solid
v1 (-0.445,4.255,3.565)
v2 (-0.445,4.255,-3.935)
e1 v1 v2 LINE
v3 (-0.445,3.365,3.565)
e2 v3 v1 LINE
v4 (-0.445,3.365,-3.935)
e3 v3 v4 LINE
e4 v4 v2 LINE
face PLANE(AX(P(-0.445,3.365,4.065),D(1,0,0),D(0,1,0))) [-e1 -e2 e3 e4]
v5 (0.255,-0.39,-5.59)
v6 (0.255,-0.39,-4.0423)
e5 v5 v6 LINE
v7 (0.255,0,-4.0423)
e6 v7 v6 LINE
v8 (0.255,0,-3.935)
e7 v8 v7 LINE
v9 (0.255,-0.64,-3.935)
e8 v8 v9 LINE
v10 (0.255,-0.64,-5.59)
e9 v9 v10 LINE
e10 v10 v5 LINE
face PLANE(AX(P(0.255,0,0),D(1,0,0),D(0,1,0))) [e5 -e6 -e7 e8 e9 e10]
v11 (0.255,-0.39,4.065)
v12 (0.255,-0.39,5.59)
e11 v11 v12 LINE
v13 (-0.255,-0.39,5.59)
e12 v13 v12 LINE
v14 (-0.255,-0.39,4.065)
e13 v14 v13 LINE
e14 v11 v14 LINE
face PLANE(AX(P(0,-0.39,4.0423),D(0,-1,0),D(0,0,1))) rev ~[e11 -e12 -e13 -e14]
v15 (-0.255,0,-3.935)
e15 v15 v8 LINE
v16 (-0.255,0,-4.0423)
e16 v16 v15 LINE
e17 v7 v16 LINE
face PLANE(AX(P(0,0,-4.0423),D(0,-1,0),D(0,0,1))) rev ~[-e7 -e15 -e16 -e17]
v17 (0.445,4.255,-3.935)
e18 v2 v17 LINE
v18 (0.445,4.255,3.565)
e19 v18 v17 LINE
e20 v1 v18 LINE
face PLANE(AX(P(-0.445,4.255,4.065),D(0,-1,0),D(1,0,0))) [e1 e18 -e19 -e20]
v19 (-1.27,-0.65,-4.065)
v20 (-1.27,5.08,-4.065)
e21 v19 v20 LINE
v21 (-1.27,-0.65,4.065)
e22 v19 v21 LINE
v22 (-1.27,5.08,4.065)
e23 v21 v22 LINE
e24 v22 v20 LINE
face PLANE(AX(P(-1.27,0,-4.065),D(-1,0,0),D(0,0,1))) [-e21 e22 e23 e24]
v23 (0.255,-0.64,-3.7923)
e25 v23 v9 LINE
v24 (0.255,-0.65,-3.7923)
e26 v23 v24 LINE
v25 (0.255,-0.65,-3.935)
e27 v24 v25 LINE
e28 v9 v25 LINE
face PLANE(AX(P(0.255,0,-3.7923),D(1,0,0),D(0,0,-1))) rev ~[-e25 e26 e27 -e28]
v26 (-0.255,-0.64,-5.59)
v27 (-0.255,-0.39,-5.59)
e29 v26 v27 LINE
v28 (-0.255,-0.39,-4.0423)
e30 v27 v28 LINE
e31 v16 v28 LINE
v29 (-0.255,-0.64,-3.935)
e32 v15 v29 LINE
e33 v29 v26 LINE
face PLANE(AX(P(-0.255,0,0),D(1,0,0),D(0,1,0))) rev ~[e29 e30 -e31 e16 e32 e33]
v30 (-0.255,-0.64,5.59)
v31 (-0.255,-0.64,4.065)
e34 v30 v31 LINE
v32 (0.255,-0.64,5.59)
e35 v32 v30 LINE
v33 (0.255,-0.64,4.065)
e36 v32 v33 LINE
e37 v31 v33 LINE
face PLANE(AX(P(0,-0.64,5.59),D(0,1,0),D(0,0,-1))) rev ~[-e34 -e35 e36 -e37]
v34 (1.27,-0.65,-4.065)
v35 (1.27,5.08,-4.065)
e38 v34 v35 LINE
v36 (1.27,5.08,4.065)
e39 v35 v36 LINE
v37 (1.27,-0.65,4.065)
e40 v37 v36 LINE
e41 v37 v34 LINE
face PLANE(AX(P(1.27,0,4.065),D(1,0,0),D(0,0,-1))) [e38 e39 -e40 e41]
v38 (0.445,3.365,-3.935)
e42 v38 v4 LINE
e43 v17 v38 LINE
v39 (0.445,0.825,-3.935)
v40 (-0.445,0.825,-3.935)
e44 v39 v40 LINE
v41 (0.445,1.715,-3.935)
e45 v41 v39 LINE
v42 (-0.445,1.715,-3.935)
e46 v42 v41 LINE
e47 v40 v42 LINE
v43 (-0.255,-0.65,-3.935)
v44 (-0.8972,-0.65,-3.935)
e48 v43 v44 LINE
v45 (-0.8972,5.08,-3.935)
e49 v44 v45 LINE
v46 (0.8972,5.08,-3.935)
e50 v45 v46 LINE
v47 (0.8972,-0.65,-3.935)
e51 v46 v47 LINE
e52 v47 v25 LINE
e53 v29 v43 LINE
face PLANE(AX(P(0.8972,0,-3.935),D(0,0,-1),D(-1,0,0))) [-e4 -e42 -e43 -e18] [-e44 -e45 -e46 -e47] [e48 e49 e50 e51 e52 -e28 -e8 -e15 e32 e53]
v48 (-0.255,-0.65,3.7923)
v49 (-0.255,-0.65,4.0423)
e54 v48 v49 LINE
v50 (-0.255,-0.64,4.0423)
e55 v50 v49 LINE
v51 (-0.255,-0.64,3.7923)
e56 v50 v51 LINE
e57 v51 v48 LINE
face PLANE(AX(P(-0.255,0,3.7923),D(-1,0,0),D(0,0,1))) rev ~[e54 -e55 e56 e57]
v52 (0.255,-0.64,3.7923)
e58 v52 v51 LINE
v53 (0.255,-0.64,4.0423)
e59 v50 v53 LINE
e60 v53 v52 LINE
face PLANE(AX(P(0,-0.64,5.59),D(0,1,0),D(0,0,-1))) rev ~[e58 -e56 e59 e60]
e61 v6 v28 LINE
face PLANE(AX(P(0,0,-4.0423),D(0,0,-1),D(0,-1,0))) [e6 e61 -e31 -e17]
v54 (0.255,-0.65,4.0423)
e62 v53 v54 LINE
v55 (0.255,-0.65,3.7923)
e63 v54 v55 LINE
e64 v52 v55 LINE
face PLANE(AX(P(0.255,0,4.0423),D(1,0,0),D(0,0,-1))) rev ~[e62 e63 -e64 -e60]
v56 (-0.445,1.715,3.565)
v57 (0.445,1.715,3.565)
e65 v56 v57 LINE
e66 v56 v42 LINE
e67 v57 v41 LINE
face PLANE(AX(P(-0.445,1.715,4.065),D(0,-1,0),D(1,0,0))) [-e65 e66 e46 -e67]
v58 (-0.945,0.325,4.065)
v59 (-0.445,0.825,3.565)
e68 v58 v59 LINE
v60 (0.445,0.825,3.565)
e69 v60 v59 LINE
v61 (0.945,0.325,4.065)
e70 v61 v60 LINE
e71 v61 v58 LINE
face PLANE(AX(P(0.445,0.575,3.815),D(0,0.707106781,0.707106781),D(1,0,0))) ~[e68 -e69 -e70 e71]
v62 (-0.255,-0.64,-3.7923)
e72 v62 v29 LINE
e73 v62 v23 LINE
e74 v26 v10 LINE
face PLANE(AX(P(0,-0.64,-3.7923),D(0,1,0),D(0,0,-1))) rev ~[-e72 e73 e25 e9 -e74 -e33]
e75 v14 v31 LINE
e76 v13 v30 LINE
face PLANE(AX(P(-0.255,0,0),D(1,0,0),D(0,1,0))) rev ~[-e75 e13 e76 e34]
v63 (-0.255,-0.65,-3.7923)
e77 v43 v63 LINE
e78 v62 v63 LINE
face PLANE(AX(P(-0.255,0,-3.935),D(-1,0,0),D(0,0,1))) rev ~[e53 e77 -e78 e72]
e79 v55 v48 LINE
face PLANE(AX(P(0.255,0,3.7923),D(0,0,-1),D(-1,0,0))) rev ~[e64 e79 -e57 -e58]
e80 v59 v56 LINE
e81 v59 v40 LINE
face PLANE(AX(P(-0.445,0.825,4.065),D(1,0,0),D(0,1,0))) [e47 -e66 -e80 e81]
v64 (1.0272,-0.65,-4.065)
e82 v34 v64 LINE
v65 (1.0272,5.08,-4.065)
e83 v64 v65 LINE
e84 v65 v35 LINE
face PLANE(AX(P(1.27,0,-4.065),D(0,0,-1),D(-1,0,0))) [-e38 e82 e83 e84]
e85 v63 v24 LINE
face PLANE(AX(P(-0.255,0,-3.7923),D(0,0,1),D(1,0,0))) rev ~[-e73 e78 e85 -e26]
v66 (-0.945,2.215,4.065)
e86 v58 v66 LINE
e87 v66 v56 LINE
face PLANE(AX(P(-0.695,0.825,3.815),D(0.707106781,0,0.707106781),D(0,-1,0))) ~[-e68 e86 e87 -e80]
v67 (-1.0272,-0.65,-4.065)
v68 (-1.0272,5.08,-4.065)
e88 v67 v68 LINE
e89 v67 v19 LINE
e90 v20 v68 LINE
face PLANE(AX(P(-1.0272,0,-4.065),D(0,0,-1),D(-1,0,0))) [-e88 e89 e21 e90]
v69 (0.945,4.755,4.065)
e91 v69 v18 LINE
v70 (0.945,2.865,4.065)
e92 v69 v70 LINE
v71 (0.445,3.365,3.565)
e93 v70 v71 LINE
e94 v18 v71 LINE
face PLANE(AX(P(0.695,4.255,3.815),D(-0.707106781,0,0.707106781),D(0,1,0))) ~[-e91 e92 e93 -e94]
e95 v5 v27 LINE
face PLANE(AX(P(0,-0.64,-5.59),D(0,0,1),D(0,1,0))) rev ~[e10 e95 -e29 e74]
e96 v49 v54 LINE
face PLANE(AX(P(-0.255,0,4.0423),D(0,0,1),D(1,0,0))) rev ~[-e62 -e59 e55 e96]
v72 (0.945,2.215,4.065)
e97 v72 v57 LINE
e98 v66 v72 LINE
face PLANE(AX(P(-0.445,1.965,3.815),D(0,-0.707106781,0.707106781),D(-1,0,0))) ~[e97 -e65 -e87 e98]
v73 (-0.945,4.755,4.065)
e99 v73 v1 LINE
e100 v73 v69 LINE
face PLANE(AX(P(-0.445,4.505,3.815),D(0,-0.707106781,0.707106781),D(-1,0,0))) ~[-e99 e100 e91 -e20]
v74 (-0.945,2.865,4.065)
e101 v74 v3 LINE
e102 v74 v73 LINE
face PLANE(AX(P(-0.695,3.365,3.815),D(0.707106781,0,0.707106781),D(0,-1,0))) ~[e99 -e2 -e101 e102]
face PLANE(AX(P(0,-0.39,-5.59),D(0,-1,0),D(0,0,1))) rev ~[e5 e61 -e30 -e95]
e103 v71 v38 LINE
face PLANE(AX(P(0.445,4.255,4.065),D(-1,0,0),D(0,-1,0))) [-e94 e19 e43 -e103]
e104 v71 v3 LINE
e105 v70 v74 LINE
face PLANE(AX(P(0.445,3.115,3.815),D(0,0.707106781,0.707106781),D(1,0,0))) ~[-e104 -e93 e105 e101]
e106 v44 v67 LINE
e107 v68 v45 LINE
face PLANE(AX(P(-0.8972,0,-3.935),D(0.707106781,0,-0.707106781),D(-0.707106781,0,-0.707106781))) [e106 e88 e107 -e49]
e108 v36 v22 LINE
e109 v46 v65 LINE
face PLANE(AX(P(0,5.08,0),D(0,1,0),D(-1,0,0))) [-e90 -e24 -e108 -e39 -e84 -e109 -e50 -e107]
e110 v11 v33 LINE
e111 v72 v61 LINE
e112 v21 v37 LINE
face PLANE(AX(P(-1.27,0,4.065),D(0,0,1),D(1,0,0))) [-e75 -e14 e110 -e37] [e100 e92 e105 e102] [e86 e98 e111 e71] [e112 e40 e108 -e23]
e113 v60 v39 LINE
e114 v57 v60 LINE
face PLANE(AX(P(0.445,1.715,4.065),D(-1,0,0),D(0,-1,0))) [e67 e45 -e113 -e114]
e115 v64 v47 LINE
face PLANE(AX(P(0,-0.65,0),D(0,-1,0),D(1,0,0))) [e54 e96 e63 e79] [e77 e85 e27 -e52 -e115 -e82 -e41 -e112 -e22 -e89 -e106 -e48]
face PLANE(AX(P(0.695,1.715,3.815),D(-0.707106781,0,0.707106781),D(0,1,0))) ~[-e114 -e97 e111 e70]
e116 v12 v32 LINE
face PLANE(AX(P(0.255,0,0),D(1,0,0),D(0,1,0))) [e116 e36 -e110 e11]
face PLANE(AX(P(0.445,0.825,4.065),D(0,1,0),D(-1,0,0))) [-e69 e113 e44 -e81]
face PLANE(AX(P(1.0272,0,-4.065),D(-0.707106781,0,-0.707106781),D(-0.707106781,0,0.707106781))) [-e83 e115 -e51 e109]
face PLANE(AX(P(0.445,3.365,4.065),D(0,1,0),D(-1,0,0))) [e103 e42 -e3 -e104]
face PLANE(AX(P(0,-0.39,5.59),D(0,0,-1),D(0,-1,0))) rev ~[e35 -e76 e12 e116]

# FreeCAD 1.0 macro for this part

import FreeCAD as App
import Part
import Sketcher
from FreeCAD import Vector
Q = App.Units.Quantity


def edges_at(feature, points):
    """Names of the edges that pass closest to the given points."""
    edges = feature.Shape.Edges
    near = lambda p: min(range(len(edges)), key=lambda i: edges[i].distToShape(Part.Vertex(*p))[0])
    return sorted({f"Edge{near(p) + 1}" for p in points})

doc = App.newDocument("Part")
params = doc.addObject("Spreadsheet::Sheet", "Params")
for row, (alias, value) in enumerate([
    ("sketch1_width", "2.54 mm"),
    ("sketch1_height", "8.13 mm"),
    ("pad1_length", "5.08 mm"),
    ("sketch2_width", "0.89 mm"),
    ("pocket1_length", "8 mm"),
    ("sketch3_width", "0.25 mm"),
    ("sketch3_width2", "0.39 mm"),
    ("pad2_length", "0.51 mm"),
    ("chamfer_size", "0.5 mm"),
    ("sketch4_width", "0.51 mm"),
    ("sketch4_width2", "2.54 mm"),
    ("sketch4_height", "8.13 mm"),
    ("sketch4_height2", "0.25 mm"),
    ("pad3_length", "0.65 mm"),
], start=1):
    params.set(f"A{row}", alias)
    params.set(f"B{row}", "=" + value)
    params.setAlias(f"B{row}", alias)

body = doc.addObject("PartDesign::Body", "Body")

# Sketch on XZ plane
sketch1 = doc.addObject("Sketcher::SketchObject", "Sketch")
body.addObject(sketch1)
sketch1.AttachmentSupport = (doc.XZ_Plane, [""])
sketch1.MapMode = "FlatFace"
sketch1.addGeometry(Part.LineSegment(Vector(1.27, 4.07, 0), Vector(1.27, -4.07, 0)), False)
sketch1.addGeometry(Part.LineSegment(Vector(1.27, -4.07, 0), Vector(1.03, -4.07, 0)), False)
sketch1.addGeometry(Part.LineSegment(Vector(1.03, -4.07, 0), Vector(0.9, -3.94, 0)), False)
sketch1.addGeometry(Part.LineSegment(Vector(0.9, -3.94, 0), Vector(-0.9, -3.94, 0)), False)
sketch1.addGeometry(Part.LineSegment(Vector(-0.9, -3.94, 0), Vector(-1.03, -4.07, 0)), False)
sketch1.addGeometry(Part.LineSegment(Vector(-1.03, -4.07, 0), Vector(-1.27, -4.07, 0)), False)
sketch1.addGeometry(Part.LineSegment(Vector(-1.27, -4.07, 0), Vector(-1.27, 4.07, 0)), False)
sketch1.addGeometry(Part.LineSegment(Vector(-1.27, 4.07, 0), Vector(1.27, 4.07, 0)), False)
sketch1.addConstraint(Sketcher.Constraint("Coincident", 0, 2, 1, 1))
sketch1.addConstraint(Sketcher.Constraint("Coincident", 1, 2, 2, 1))
sketch1.addConstraint(Sketcher.Constraint("Coincident", 2, 2, 3, 1))
sketch1.addConstraint(Sketcher.Constraint("Coincident", 3, 2, 4, 1))
sketch1.addConstraint(Sketcher.Constraint("Coincident", 4, 2, 5, 1))
sketch1.addConstraint(Sketcher.Constraint("Coincident", 5, 2, 6, 1))
sketch1.addConstraint(Sketcher.Constraint("Coincident", 6, 2, 7, 1))
sketch1.addConstraint(Sketcher.Constraint("Coincident", 7, 2, 0, 1))
sketch1.addConstraint(Sketcher.Constraint("Vertical", 0))
sketch1.addConstraint(Sketcher.Constraint("Horizontal", 1))
sketch1.addConstraint(Sketcher.Constraint("Horizontal", 3))
sketch1.addConstraint(Sketcher.Constraint("Horizontal", 5))
sketch1.addConstraint(Sketcher.Constraint("Vertical", 6))
sketch1.addConstraint(Sketcher.Constraint("Horizontal", 7))
sketch1.addConstraint(Sketcher.Constraint("Symmetric", 0, 2, 6, 2, -1, 1))
sketch1.addConstraint(Sketcher.Constraint("Symmetric", 1, 2, 4, 2, -2))
sketch1.addConstraint(Sketcher.Constraint("Perpendicular", 2, 4))
sketch1.addConstraint(Sketcher.Constraint("Equal", 2, 4))
sketch1.addConstraint(Sketcher.Constraint("DistanceX", 7, 1, 7, 2, Q("2.54 mm")))
sketch1.addConstraint(Sketcher.Constraint("DistanceY", 0, 2, 0, 1, Q("8.13 mm")))
sketch1.addConstraint(Sketcher.Constraint("DistanceX", 2, 2, 1, 2, Q("0.13 mm")))
sketch1.addConstraint(Sketcher.Constraint("DistanceX", 1, 2, 1, 1, Q("0.2428 mm")))
sketch1.setExpression("Constraints[18]", "Params.sketch1_width")
sketch1.setExpression("Constraints[19]", "Params.sketch1_height")
pad1 = doc.addObject("PartDesign::Pad", "Pad")
body.addObject(pad1)
pad1.Profile = sketch1
pad1.setExpression("Length", "Params.pad1_length")
pad1.Reversed = True

# Sketch on XY plane
sketch2 = doc.addObject("Sketcher::SketchObject", "Sketch001")
body.addObject(sketch2)
sketch2.AttachmentSupport = (doc.XY_Plane, [""])
sketch2.MapMode = "FlatFace"
sketch2.AttachmentOffset = App.Placement(Vector(0, 0, 4.065), App.Rotation())
sketch2.addGeometry(Part.LineSegment(Vector(0.4, 4.3, 0), Vector(-0.4, 4.3, 0)), False)
sketch2.addGeometry(Part.LineSegment(Vector(-0.4, 4.3, 0), Vector(-0.4, 3.4, 0)), False)
sketch2.addGeometry(Part.LineSegment(Vector(-0.4, 3.4, 0), Vector(0.4, 3.4, 0)), False)
sketch2.addGeometry(Part.LineSegment(Vector(0.4, 3.4, 0), Vector(0.4, 4.3, 0)), False)
sketch2.addGeometry(Part.LineSegment(Vector(0.4, 1.7, 0), Vector(-0.4, 1.7, 0)), False)
sketch2.addGeometry(Part.LineSegment(Vector(-0.4, 1.7, 0), Vector(-0.4, 0.8, 0)), False)
sketch2.addGeometry(Part.LineSegment(Vector(-0.4, 0.8, 0), Vector(0.4, 0.8, 0)), False)
sketch2.addGeometry(Part.LineSegment(Vector(0.4, 0.8, 0), Vector(0.4, 1.7, 0)), False)
sketch2.addConstraint(Sketcher.Constraint("Coincident", 0, 2, 1, 1))
sketch2.addConstraint(Sketcher.Constraint("Coincident", 1, 2, 2, 1))
sketch2.addConstraint(Sketcher.Constraint("Coincident", 2, 2, 3, 1))
sketch2.addConstraint(Sketcher.Constraint("Coincident", 3, 2, 0, 1))
sketch2.addConstraint(Sketcher.Constraint("Coincident", 4, 2, 5, 1))
sketch2.addConstraint(Sketcher.Constraint("Coincident", 5, 2, 6, 1))
sketch2.addConstraint(Sketcher.Constraint("Coincident", 6, 2, 7, 1))
sketch2.addConstraint(Sketcher.Constraint("Coincident", 7, 2, 4, 1))
sketch2.addConstraint(Sketcher.Constraint("Horizontal", 0))
sketch2.addConstraint(Sketcher.Constraint("Vertical", 1))
sketch2.addConstraint(Sketcher.Constraint("Horizontal", 2))
sketch2.addConstraint(Sketcher.Constraint("Vertical", 3))
sketch2.addConstraint(Sketcher.Constraint("Horizontal", 4))
sketch2.addConstraint(Sketcher.Constraint("Vertical", 5))
sketch2.addConstraint(Sketcher.Constraint("Horizontal", 6))
sketch2.addConstraint(Sketcher.Constraint("Vertical", 7))
sketch2.addConstraint(Sketcher.Constraint("Vertical", 1, 2, 4, 2))
sketch2.addConstraint(Sketcher.Constraint("Vertical", 3, 2, 6, 2))
sketch2.addConstraint(Sketcher.Constraint("Equal", 6, 1))
sketch2.addConstraint(Sketcher.Constraint("Equal", 3, 5))
sketch2.addConstraint(Sketcher.Constraint("DistanceX", 0, 2, 0, 1, Q("0.89 mm")))
sketch2.addConstraint(Sketcher.Constraint("DistanceY", 4, 2, 0, 2, Q("2.54 mm")))
sketch2.addConstraint(Sketcher.Constraint("DistanceX", 0, 2, -1, 1, Q("0.445 mm")))
sketch2.addConstraint(Sketcher.Constraint("DistanceY", -1, 1, 0, 2, Q("4.255 mm")))
sketch2.setExpression("Constraints[20]", "Params.sketch2_width")
pocket1 = doc.addObject("PartDesign::Pocket", "Pocket")
body.addObject(pocket1)
pocket1.Profile = sketch2
pocket1.setExpression("Length", "Params.pocket1_length")

# Sketch on YZ plane
sketch3 = doc.addObject("Sketcher::SketchObject", "Sketch002")
body.addObject(sketch3)
sketch3.AttachmentSupport = (doc.YZ_Plane, [""])
sketch3.MapMode = "FlatFace"
sketch3.addGeometry(Part.LineSegment(Vector(0, 3.79, 0), Vector(0, 4.04, 0)), False)
sketch3.addGeometry(Part.LineSegment(Vector(0, 4.04, 0), Vector(-0.39, 4.04, 0)), False)
sketch3.addGeometry(Part.LineSegment(Vector(-0.39, 4.04, 0), Vector(-0.39, 5.59, 0)), False)
sketch3.addGeometry(Part.LineSegment(Vector(-0.39, 5.59, 0), Vector(-0.64, 5.59, 0)), False)
sketch3.addGeometry(Part.LineSegment(Vector(-0.64, 5.59, 0), Vector(-0.64, 3.79, 0)), False)
sketch3.addGeometry(Part.LineSegment(Vector(-0.64, 3.79, 0), Vector(0, 3.79, 0)), False)
sketch3.addGeometry(Part.LineSegment(Vector(0, -4.04, 0), Vector(0, -3.79, 0)), False)
sketch3.addGeometry(Part.LineSegment(Vector(0, -3.79, 0), Vector(-0.64, -3.79, 0)), False)
sketch3.addGeometry(Part.LineSegment(Vector(-0.64, -3.79, 0), Vector(-0.64, -5.59, 0)), False)
sketch3.addGeometry(Part.LineSegment(Vector(-0.64, -5.59, 0), Vector(-0.39, -5.59, 0)), False)
sketch3.addGeometry(Part.LineSegment(Vector(-0.39, -5.59, 0), Vector(-0.39, -4.04, 0)), False)
sketch3.addGeometry(Part.LineSegment(Vector(-0.39, -4.04, 0), Vector(0, -4.04, 0)), False)
sketch3.addConstraint(Sketcher.Constraint("Coincident", 0, 2, 1, 1))
sketch3.addConstraint(Sketcher.Constraint("Coincident", 1, 2, 2, 1))
sketch3.addConstraint(Sketcher.Constraint("Coincident", 2, 2, 3, 1))
sketch3.addConstraint(Sketcher.Constraint("Coincident", 3, 2, 4, 1))
sketch3.addConstraint(Sketcher.Constraint("Coincident", 4, 2, 5, 1))
sketch3.addConstraint(Sketcher.Constraint("Coincident", 5, 2, 0, 1))
sketch3.addConstraint(Sketcher.Constraint("Coincident", 6, 2, 7, 1))
sketch3.addConstraint(Sketcher.Constraint("Coincident", 7, 2, 8, 1))
sketch3.addConstraint(Sketcher.Constraint("Coincident", 8, 2, 9, 1))
sketch3.addConstraint(Sketcher.Constraint("Coincident", 9, 2, 10, 1))
sketch3.addConstraint(Sketcher.Constraint("Coincident", 10, 2, 11, 1))
sketch3.addConstraint(Sketcher.Constraint("Coincident", 11, 2, 6, 1))
sketch3.addConstraint(Sketcher.Constraint("Vertical", 0))
sketch3.addConstraint(Sketcher.Constraint("Horizontal", 1))
sketch3.addConstraint(Sketcher.Constraint("Vertical", 2))
sketch3.addConstraint(Sketcher.Constraint("Horizontal", 3))
sketch3.addConstraint(Sketcher.Constraint("Vertical", 4))
sketch3.addConstraint(Sketcher.Constraint("Horizontal", 5))
sketch3.addConstraint(Sketcher.Constraint("Vertical", 6))
sketch3.addConstraint(Sketcher.Constraint("Horizontal", 7))
sketch3.addConstraint(Sketcher.Constraint("Vertical", 8))
sketch3.addConstraint(Sketcher.Constraint("Horizontal", 9))
sketch3.addConstraint(Sketcher.Constraint("Vertical", 10))
sketch3.addConstraint(Sketcher.Constraint("Horizontal", 11))
sketch3.addConstraint(Sketcher.Constraint("Symmetric", 5, 2, 6, 2, -1, 1))
sketch3.addConstraint(Sketcher.Constraint("Symmetric", 3, 2, 8, 2, -1))
sketch3.addConstraint(Sketcher.Constraint("Symmetric", 1, 2, 10, 2, -1))
sketch3.addConstraint(Sketcher.Constraint("PointOnObject", 0, 2, -2))
sketch3.addConstraint(Sketcher.Constraint("Equal", 9, 0))
sketch3.addConstraint(Sketcher.Constraint("DistanceX", 3, 2, 3, 1, Q("0.25 mm")))
sketch3.addConstraint(Sketcher.Constraint("DistanceX", 1, 2, 1, 1, Q("0.39 mm")))
sketch3.addConstraint(Sketcher.Constraint("DistanceY", -1, 1, 2, 2, Q("5.59 mm")))
sketch3.addConstraint(Sketcher.Constraint("DistanceY", 2, 1, 2, 2, Q("1.5477 mm")))
sketch3.setExpression("Constraints[29]", "Params.sketch3_width")
sketch3.setExpression("Constraints[30]", "Params.sketch3_width2")
pad2 = doc.addObject("PartDesign::Pad", "Pad001")
body.addObject(pad2)
pad2.Profile = sketch3
pad2.setExpression("Length", "Params.pad2_length")
pad2.Midplane = True
doc.recompute()

chamfer = doc.addObject("PartDesign::Chamfer", "Chamfer")
body.addObject(chamfer)
chamfer.Base = (pad2, edges_at(pad2, [
    (0.445, 3.81, 4.065),
    (0, 3.365, 4.065),
    (-0.445, 3.81, 4.065),
    (0, 4.255, 4.065),
    (0, 1.715, 4.065),
    (0.445, 1.27, 4.065),
    (0, 0.825, 4.065),
    (-0.445, 1.27, 4.065),
]))
chamfer.setExpression("Size", "Params.chamfer_size")

# Sketch on XZ plane
sketch4 = doc.addObject("Sketcher::SketchObject", "Sketch003")
body.addObject(sketch4)
sketch4.AttachmentSupport = (doc.XZ_Plane, [""])
sketch4.MapMode = "FlatFace"
sketch4.addGeometry(Part.LineSegment(Vector(-0.26, -3.79, 0), Vector(0.26, -3.79, 0)), False)
sketch4.addGeometry(Part.LineSegment(Vector(0.26, -3.79, 0), Vector(0.26, -3.94, 0)), False)
sketch4.addGeometry(Part.LineSegment(Vector(0.26, -3.94, 0), Vector(0.9, -3.94, 0)), False)
sketch4.addGeometry(Part.LineSegment(Vector(0.9, -3.94, 0), Vector(1.03, -4.07, 0)), False)
sketch4.addGeometry(Part.LineSegment(Vector(1.03, -4.07, 0), Vector(1.27, -4.07, 0)), False)
sketch4.addGeometry(Part.LineSegment(Vector(1.27, -4.07, 0), Vector(1.27, 4.07, 0)), False)
sketch4.addGeometry(Part.LineSegment(Vector(1.27, 4.07, 0), Vector(-1.27, 4.07, 0)), False)
sketch4.addGeometry(Part.LineSegment(Vector(-1.27, 4.07, 0), Vector(-1.27, -4.07, 0)), False)
sketch4.addGeometry(Part.LineSegment(Vector(-1.27, -4.07, 0), Vector(-1.03, -4.07, 0)), False)
sketch4.addGeometry(Part.LineSegment(Vector(-1.03, -4.07, 0), Vector(-0.9, -3.94, 0)), False)
sketch4.addGeometry(Part.LineSegment(Vector(-0.9, -3.94, 0), Vector(-0.26, -3.94, 0)), False)
sketch4.addGeometry(Part.LineSegment(Vector(-0.26, -3.94, 0), Vector(-0.26, -3.79, 0)), False)
sketch4.addGeometry(Part.LineSegment(Vector(0.26, 3.79, 0), Vector(-0.26, 3.79, 0)), False)
sketch4.addGeometry(Part.LineSegment(Vector(-0.26, 3.79, 0), Vector(-0.26, 4.04, 0)), False)
sketch4.addGeometry(Part.LineSegment(Vector(-0.26, 4.04, 0), Vector(0.26, 4.04, 0)), False)
sketch4.addGeometry(Part.LineSegment(Vector(0.26, 4.04, 0), Vector(0.26, 3.79, 0)), False)
sketch4.addConstraint(Sketcher.Constraint("Coincident", 0, 2, 1, 1))
sketch4.addConstraint(Sketcher.Constraint("Coincident", 1, 2, 2, 1))
sketch4.addConstraint(Sketcher.Constraint("Coincident", 2, 2, 3, 1))
sketch4.addConstraint(Sketcher.Constraint("Coincident", 3, 2, 4, 1))
sketch4.addConstraint(Sketcher.Constraint("Coincident", 4, 2, 5, 1))
sketch4.addConstraint(Sketcher.Constraint("Coincident", 5, 2, 6, 1))
sketch4.addConstraint(Sketcher.Constraint("Coincident", 6, 2, 7, 1))
sketch4.addConstraint(Sketcher.Constraint("Coincident", 7, 2, 8, 1))
sketch4.addConstraint(Sketcher.Constraint("Coincident", 8, 2, 9, 1))
sketch4.addConstraint(Sketcher.Constraint("Coincident", 9, 2, 10, 1))
sketch4.addConstraint(Sketcher.Constraint("Coincident", 10, 2, 11, 1))
sketch4.addConstraint(Sketcher.Constraint("Coincident", 11, 2, 0, 1))
sketch4.addConstraint(Sketcher.Constraint("Coincident", 12, 2, 13, 1))
sketch4.addConstraint(Sketcher.Constraint("Coincident", 13, 2, 14, 1))
sketch4.addConstraint(Sketcher.Constraint("Coincident", 14, 2, 15, 1))
sketch4.addConstraint(Sketcher.Constraint("Coincident", 15, 2, 12, 1))
sketch4.addConstraint(Sketcher.Constraint("Horizontal", 0))
sketch4.addConstraint(Sketcher.Constraint("Vertical", 1))
sketch4.addConstraint(Sketcher.Constraint("Horizontal", 2))
sketch4.addConstraint(Sketcher.Constraint("Horizontal", 4))
sketch4.addConstraint(Sketcher.Constraint("Vertical", 5))
sketch4.addConstraint(Sketcher.Constraint("Horizontal", 6))
sketch4.addConstraint(Sketcher.Constraint("Vertical", 7))
sketch4.addConstraint(Sketcher.Constraint("Horizontal", 8))
sketch4.addConstraint(Sketcher.Constraint("Horizontal", 10))
sketch4.addConstraint(Sketcher.Constraint("Vertical", 11))
sketch4.addConstraint(Sketcher.Constraint("Horizontal", 12))
sketch4.addConstraint(Sketcher.Constraint("Vertical", 13))
sketch4.addConstraint(Sketcher.Constraint("Horizontal", 14))
sketch4.addConstraint(Sketcher.Constraint("Vertical", 15))
sketch4.addConstraint(Sketcher.Constraint("Symmetric", 4, 2, 6, 2, -1, 1))
sketch4.addConstraint(Sketcher.Constraint("Symmetric", 0, 2, 12, 2, -1, 1))
sketch4.addConstraint(Sketcher.Constraint("Symmetric", 3, 2, 8, 2, -2))
sketch4.addConstraint(Sketcher.Constraint("Symmetric", 2, 2, 9, 2, -2))
sketch4.addConstraint(Sketcher.Constraint("Perpendicular", 3, 9))
sketch4.addConstraint(Sketcher.Constraint("Vertical", 11, 2, 12, 2))
sketch4.addConstraint(Sketcher.Constraint("Vertical", 1, 2, 14, 2))
sketch4.addConstraint(Sketcher.Constraint("DistanceY", 2, 2, 5, 2, Q("8 mm")))
sketch4.addConstraint(Sketcher.Constraint("DistanceX", 0, 1, 0, 2, Q("0.51 mm")))
sketch4.addConstraint(Sketcher.Constraint("DistanceX", 6, 2, 6, 1, Q("2.54 mm")))
sketch4.addConstraint(Sketcher.Constraint("DistanceY", 5, 1, 5, 2, Q("8.13 mm")))
sketch4.addConstraint(Sketcher.Constraint("DistanceY", 13, 1, 13, 2, Q("0.25 mm")))
sketch4.addConstraint(Sketcher.Constraint("DistanceX", 2, 1, 2, 2, Q("0.6422 mm")))
sketch4.addConstraint(Sketcher.Constraint("DistanceY", 1, 2, 1, 1, Q("0.1427 mm")))
sketch4.setExpression("Constraints[38]", "Params.sketch4_width")
sketch4.setExpression("Constraints[39]", "Params.sketch4_width2")
sketch4.setExpression("Constraints[40]", "Params.sketch4_height")
sketch4.setExpression("Constraints[41]", "Params.sketch4_height2")
pad3 = doc.addObject("PartDesign::Pad", "Pad002")
body.addObject(pad3)
pad3.Profile = sketch4
pad3.setExpression("Length", "Params.pad3_length")

doc.recompute()
